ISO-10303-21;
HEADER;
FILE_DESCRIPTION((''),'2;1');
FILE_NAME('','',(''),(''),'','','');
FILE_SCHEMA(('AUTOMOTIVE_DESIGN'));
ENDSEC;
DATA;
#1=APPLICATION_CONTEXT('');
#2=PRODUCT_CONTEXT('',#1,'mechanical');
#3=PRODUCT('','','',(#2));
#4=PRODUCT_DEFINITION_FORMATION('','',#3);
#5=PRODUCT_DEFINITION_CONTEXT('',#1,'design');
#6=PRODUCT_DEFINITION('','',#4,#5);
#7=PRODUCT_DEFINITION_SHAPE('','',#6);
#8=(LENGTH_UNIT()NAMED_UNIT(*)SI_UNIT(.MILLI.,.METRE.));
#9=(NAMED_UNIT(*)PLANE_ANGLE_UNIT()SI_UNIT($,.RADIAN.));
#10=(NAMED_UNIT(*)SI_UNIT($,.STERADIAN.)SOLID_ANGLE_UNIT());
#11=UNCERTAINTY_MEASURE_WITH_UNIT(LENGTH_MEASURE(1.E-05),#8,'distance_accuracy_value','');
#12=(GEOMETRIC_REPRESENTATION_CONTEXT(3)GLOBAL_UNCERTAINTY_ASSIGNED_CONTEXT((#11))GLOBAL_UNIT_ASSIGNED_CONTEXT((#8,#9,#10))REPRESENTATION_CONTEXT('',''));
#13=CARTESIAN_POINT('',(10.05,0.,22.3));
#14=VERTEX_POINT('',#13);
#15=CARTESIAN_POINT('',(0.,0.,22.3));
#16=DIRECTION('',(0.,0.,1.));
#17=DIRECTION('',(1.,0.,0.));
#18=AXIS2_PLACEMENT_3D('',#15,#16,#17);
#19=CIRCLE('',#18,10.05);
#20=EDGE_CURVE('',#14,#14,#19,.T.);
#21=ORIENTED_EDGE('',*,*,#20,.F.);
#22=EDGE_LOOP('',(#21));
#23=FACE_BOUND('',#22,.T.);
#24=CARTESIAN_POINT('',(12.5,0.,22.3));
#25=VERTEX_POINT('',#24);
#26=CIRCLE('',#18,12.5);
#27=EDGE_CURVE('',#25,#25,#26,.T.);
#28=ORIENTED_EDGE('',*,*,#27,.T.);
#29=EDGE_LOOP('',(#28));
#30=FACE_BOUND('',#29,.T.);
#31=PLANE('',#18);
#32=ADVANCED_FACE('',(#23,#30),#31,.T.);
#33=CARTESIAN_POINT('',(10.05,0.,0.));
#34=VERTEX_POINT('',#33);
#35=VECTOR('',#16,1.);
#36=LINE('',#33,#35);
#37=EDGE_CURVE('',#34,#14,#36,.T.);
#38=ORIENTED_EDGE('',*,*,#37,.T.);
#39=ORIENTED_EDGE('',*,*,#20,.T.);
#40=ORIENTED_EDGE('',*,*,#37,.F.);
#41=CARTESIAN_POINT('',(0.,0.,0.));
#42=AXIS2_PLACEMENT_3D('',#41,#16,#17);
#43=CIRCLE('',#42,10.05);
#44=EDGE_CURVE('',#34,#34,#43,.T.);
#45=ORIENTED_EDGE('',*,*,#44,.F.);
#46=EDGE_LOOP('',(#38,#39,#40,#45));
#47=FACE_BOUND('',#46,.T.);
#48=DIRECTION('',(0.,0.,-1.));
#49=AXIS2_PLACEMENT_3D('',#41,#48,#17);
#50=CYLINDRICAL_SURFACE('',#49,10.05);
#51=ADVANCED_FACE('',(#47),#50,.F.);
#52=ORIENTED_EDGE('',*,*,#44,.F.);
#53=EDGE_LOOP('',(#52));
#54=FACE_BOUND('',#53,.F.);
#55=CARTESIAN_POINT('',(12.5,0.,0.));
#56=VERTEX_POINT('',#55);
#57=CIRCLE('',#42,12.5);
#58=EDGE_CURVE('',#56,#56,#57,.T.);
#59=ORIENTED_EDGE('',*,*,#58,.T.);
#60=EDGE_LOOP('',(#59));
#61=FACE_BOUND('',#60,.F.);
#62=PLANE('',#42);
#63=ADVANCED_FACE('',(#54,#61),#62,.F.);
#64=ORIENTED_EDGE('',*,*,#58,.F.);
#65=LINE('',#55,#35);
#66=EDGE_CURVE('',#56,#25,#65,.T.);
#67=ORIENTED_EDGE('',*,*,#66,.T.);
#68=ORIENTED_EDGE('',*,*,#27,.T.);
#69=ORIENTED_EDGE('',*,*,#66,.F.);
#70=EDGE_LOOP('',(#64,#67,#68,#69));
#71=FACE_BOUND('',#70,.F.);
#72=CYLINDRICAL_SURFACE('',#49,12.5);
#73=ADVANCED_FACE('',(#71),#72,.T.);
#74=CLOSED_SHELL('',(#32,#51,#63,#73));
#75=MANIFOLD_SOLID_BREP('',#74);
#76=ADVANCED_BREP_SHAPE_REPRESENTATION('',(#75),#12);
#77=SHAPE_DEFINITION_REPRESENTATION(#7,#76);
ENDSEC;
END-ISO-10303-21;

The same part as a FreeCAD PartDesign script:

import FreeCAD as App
import Part
import Sketcher

V = App.Vector

doc = App.newDocument("Part")
body = doc.addObject("PartDesign::Body", "Body")

# Sketch on XY plane
sketch1 = body.newObject("Sketcher::SketchObject", "Sketch")
sketch1.AttachmentSupport = (doc.getObject("XY_Plane"), [""])
sketch1.MapMode = "FlatFace"
sketch1.addGeometry(Part.Circle(V(0, 0, 0), V(0, 0, 1), 12.5), False)
sketch1.addGeometry(Part.Circle(V(0, 0, 0), V(0, 0, 1), 10.05), False)
sketch1.addConstraint(Sketcher.Constraint("Coincident", 0, 3, -1, 1))
sketch1.addConstraint(Sketcher.Constraint("Coincident", 1, 3, -1, 1))
sketch1.addConstraint(Sketcher.Constraint("Diameter", 0, 25.0))
sketch1.addConstraint(Sketcher.Constraint("Diameter", 1, 20.1))
pad1 = body.newObject("PartDesign::Pad", "Pad")
pad1.Profile = sketch1
pad1.Length = 22.3

doc.recompute()
